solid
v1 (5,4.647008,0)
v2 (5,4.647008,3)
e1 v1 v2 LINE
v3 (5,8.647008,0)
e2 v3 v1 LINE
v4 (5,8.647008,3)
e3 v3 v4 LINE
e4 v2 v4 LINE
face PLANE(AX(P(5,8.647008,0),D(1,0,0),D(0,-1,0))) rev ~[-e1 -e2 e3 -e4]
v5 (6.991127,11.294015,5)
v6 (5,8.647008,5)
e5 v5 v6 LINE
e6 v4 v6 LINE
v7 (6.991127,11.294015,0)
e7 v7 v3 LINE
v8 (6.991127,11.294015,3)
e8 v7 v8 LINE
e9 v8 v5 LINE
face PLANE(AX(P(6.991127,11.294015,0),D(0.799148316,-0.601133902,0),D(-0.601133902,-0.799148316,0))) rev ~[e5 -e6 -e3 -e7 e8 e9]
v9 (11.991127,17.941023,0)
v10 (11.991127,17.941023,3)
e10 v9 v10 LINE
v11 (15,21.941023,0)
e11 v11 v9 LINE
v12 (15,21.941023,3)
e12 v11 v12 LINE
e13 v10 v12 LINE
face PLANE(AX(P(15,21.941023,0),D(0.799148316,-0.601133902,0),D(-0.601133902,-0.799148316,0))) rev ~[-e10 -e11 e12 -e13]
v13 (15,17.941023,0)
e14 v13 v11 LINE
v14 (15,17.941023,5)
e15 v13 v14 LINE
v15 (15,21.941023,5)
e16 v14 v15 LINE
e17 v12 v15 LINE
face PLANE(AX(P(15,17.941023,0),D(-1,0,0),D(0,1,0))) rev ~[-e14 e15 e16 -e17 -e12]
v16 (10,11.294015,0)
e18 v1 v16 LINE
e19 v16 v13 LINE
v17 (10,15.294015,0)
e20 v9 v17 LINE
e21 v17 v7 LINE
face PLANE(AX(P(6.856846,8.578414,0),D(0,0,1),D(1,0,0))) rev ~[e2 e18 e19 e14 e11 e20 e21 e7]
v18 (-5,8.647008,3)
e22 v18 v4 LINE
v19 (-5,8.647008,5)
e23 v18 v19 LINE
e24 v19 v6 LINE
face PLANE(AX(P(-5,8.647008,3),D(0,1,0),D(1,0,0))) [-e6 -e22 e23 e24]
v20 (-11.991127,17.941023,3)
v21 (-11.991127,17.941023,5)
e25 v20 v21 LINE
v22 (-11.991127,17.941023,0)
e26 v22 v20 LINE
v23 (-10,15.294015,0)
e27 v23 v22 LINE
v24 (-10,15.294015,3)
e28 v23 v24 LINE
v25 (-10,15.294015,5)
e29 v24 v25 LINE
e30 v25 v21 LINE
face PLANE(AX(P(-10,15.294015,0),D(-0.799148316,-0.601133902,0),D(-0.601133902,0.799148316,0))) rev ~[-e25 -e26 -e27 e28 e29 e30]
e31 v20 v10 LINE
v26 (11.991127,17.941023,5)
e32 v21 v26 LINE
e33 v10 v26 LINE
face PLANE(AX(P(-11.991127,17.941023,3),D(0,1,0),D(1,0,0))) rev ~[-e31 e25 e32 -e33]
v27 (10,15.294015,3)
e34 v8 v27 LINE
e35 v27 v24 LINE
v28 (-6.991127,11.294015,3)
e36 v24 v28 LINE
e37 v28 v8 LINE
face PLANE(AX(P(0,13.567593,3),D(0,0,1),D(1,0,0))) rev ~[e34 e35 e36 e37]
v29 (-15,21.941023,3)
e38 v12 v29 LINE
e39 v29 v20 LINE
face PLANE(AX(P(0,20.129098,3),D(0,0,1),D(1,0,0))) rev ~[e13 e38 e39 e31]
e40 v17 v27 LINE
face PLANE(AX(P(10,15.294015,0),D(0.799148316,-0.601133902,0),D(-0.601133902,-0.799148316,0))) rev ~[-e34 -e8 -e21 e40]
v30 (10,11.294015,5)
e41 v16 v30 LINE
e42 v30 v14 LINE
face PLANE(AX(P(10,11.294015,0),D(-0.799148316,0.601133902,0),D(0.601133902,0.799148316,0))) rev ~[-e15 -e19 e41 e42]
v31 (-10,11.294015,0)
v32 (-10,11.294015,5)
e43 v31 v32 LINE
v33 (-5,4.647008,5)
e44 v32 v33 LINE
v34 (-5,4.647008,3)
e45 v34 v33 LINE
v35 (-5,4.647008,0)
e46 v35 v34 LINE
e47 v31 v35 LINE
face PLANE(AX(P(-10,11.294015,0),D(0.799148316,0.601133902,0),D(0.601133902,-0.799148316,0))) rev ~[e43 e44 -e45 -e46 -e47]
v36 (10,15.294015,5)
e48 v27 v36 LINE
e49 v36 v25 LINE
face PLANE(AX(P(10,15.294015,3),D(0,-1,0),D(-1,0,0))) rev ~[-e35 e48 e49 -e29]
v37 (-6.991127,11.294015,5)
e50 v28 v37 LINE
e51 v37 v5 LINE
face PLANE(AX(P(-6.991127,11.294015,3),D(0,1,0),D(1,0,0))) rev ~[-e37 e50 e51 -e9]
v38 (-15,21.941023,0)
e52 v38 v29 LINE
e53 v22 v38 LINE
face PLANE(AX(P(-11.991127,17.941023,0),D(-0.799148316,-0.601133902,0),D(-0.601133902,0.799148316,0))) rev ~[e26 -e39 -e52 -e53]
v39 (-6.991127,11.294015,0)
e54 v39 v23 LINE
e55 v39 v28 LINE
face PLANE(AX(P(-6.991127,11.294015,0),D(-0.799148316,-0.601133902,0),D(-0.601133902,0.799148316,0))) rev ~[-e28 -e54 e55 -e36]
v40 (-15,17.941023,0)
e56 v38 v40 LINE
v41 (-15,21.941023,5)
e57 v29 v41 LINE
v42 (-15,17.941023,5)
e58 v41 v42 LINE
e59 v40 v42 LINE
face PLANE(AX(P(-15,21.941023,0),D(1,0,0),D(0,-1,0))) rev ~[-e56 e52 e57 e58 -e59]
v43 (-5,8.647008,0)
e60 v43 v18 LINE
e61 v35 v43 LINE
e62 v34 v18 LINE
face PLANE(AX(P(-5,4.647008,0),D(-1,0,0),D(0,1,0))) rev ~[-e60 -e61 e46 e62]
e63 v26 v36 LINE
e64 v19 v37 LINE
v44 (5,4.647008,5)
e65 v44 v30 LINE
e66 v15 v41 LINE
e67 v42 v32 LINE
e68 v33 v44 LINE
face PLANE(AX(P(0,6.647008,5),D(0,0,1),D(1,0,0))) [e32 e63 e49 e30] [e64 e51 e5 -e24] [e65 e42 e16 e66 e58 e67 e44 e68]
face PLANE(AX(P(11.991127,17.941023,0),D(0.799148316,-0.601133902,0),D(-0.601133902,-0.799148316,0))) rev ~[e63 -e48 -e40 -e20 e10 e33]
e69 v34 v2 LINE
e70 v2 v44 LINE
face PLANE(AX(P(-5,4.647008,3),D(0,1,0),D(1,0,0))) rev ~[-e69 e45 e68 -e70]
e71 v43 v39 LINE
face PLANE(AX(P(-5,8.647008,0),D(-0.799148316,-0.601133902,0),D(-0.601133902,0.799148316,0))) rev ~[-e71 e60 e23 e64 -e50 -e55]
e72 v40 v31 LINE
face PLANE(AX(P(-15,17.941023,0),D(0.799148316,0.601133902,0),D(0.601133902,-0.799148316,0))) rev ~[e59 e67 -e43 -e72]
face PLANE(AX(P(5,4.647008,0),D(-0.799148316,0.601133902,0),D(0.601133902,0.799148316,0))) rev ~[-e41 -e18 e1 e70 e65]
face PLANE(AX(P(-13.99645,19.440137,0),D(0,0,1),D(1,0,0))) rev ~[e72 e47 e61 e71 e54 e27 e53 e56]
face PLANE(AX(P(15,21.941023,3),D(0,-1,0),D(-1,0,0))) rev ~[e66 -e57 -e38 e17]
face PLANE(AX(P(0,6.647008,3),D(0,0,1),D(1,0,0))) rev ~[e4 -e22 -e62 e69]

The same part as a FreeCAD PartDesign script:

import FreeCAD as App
import Part
import Sketcher


def add_polygon(sketch, points):
    """Adds a closed chain of lines whose ends are joined by coincident constraints."""
    first, n = sketch.GeometryCount, len(points)
    for a, b in zip(points, points[1:] + points[:1]):
        sketch.addGeometry(Part.LineSegment(App.Vector(*a, 0), App.Vector(*b, 0)), False)
    for i in range(n):
        sketch.addConstraint(Sketcher.Constraint("Coincident", first + i, 2, first + (i + 1) % n, 1))

doc = App.newDocument("Part")
body = doc.addObject("PartDesign::Body", "Body")

# Sketch on XY plane
sketch1 = body.newObject("Sketcher::SketchObject", "Sketch")
sketch1.AttachmentSupport = (doc.getObject("XY_Plane"), [""])
sketch1.MapMode = "FlatFace"
add_polygon(sketch1, [(-15, 21.9), (-15, 17.9), (-10, 11.3), (-5, 4.6), (-5, 8.6), (-7, 11.3), (-10, 15.3), (-12, 17.9)])  # lines 0-7
sketch1.addConstraint(Sketcher.Constraint("Vertical", 0))
sketch1.addConstraint(Sketcher.Constraint("Vertical", 3))
sketch1.addConstraint(Sketcher.Constraint("Parallel", 1, 2))
sketch1.addConstraint(Sketcher.Constraint("Parallel", 2, 4))
sketch1.addConstraint(Sketcher.Constraint("Parallel", 4, 5))
sketch1.addConstraint(Sketcher.Constraint("Parallel", 5, 6))
sketch1.addConstraint(Sketcher.Constraint("Parallel", 6, 7))
sketch1.addConstraint(Sketcher.Constraint("Horizontal", 1, 2, 4, 2))
sketch1.addConstraint(Sketcher.Constraint("Horizontal", 0, 2, 6, 2))
sketch1.addConstraint(Sketcher.Constraint("Vertical", 1, 2, 5, 2))
sketch1.addConstraint(Sketcher.Constraint("Equal", 1, 2))
sketch1.addConstraint(Sketcher.Constraint("DistanceY", 0, 2, 0, 1, 4.0))
sketch1.addConstraint(Sketcher.Constraint("DistanceX", 0, 2, -1, 1, 15.0))
sketch1.addConstraint(Sketcher.Constraint("DistanceX", 1, 2, -1, 1, 10.0))
sketch1.addConstraint(Sketcher.Constraint("Distance", 5, 5.005329))
sketch1.addConstraint(Sketcher.Constraint("DistanceY", -1, 1, 0, 2, 17.941023))
pad1 = body.newObject("PartDesign::Pad", "Pad")
pad1.Profile = sketch1
pad1.Length = 5
body2 = doc.addObject("PartDesign::Body", "Body001")

# Sketch on XY plane
sketch2 = body2.newObject("Sketcher::SketchObject", "Sketch001")
sketch2.AttachmentSupport = (doc.getObject("XY_Plane001"), [""])
sketch2.MapMode = "FlatFace"
add_polygon(sketch2, [(7, 11.3), (5, 8.6), (5, 4.6), (10, 11.3), (15, 17.9), (15, 21.9), (12, 17.9), (10, 15.3)])  # lines 0-7
sketch2.addConstraint(Sketcher.Constraint("Vertical", 1))
sketch2.addConstraint(Sketcher.Constraint("Vertical", 4))
sketch2.addConstraint(Sketcher.Constraint("Parallel", 0, 2))
sketch2.addConstraint(Sketcher.Constraint("Parallel", 2, 3))
sketch2.addConstraint(Sketcher.Constraint("Parallel", 3, 5))
sketch2.addConstraint(Sketcher.Constraint("Parallel", 5, 6))
sketch2.addConstraint(Sketcher.Constraint("Parallel", 6, 7))
sketch2.addConstraint(Sketcher.Constraint("Horizontal", 3, 2, 5, 2))
sketch2.addConstraint(Sketcher.Constraint("Horizontal", 2, 2, 7, 2))
sketch2.addConstraint(Sketcher.Constraint("Vertical", 2, 2, 6, 2))
sketch2.addConstraint(Sketcher.Constraint("Equal", 2, 3))
sketch2.addConstraint(Sketcher.Constraint("DistanceY", 1, 2, 1, 1, 4.0))
sketch2.addConstraint(Sketcher.Constraint("DistanceX", -1, 1, 0, 2, 5.0))
sketch2.addConstraint(Sketcher.Constraint("DistanceX", -1, 1, 2, 2, 10.0))
sketch2.addConstraint(Sketcher.Constraint("Distance", 5, 5.005329))
sketch2.addConstraint(Sketcher.Constraint("DistanceY", -1, 1, 0, 2, 8.647008))
pad2 = body2.newObject("PartDesign::Pad", "Pad001")
pad2.Profile = sketch2
pad2.Length = 5
body.AllowCompound = True
doc.recompute()

boolean = body.newObject("PartDesign::Boolean", "Boolean")
boolean.Type = "Fuse"
boolean.addObjects([body2])

# Sketch on XY plane
sketch3 = body.newObject("Sketcher::SketchObject", "Sketch002")
sketch3.AttachmentSupport = (doc.getObject("XY_Plane"), [""])
sketch3.MapMode = "FlatFace"
sketch3.AttachmentOffset = App.Placement(App.Vector(0, 0, 3), App.Rotation())
add_polygon(sketch3, [(-5, 8.6), (-5, 4.6), (5, 4.6), (5, 8.6)])  # lines 0-3
add_polygon(sketch3, [(10, 15.3), (-10, 15.3), (-7, 11.3), (7, 11.3)])  # lines 4-7
add_polygon(sketch3, [(-15, 21.9), (-12, 17.9), (12, 17.9), (15, 21.9)])  # lines 8-11
sketch3.addConstraint(Sketcher.Constraint("Vertical", 0))
sketch3.addConstraint(Sketcher.Constraint("Horizontal", 1))
sketch3.addConstraint(Sketcher.Constraint("Vertical", 2))
sketch3.addConstraint(Sketcher.Constraint("Horizontal", 3))
sketch3.addConstraint(Sketcher.Constraint("Horizontal", 4))
sketch3.addConstraint(Sketcher.Constraint("Horizontal", 6))
sketch3.addConstraint(Sketcher.Constraint("Horizontal", 9))
sketch3.addConstraint(Sketcher.Constraint("Horizontal", 11))
sketch3.addConstraint(Sketcher.Constraint("Parallel", 5, 8))
sketch3.addConstraint(Sketcher.Constraint("Parallel", 7, 10))
sketch3.addConstraint(Sketcher.Constraint("Equal", 5, 7))
sketch3.addConstraint(Sketcher.Constraint("Equal", 7, 8))
sketch3.addConstraint(Sketcher.Constraint("DistanceX", 1, 1, 1, 2, 10.0))
sketch3.addConstraint(Sketcher.Constraint("DistanceX", 4, 2, 4, 1, 20.0))
sketch3.addConstraint(Sketcher.Constraint("DistanceX", 11, 2, 11, 1, 30.0))
sketch3.addConstraint(Sketcher.Constraint("DistanceY", 0, 2, 0, 1, 4.0))
sketch3.addConstraint(Sketcher.Constraint("DistanceX", 0, 2, -1, 1, 5.0))
sketch3.addConstraint(Sketcher.Constraint("DistanceX", 4, 2, -1, 1, 10.0))
sketch3.addConstraint(Sketcher.Constraint("DistanceX", -1, 1, 10, 2, 15.0))
sketch3.addConstraint(Sketcher.Constraint("DistanceY", 5, 2, 4, 2, 4.0))
sketch3.addConstraint(Sketcher.Constraint("Distance", 5, 5.005329))
sketch3.addConstraint(Sketcher.Constraint("DistanceY", -1, 1, 0, 2, 4.647008))
sketch3.addConstraint(Sketcher.Constraint("DistanceY", -1, 1, 4, 2, 15.294015))
sketch3.addConstraint(Sketcher.Constraint("DistanceY", -1, 1, 8, 2, 17.941023))
pad3 = body.newObject("PartDesign::Pad", "Pad002")
pad3.Profile = sketch3
pad3.Length = 2

doc.recompute()
